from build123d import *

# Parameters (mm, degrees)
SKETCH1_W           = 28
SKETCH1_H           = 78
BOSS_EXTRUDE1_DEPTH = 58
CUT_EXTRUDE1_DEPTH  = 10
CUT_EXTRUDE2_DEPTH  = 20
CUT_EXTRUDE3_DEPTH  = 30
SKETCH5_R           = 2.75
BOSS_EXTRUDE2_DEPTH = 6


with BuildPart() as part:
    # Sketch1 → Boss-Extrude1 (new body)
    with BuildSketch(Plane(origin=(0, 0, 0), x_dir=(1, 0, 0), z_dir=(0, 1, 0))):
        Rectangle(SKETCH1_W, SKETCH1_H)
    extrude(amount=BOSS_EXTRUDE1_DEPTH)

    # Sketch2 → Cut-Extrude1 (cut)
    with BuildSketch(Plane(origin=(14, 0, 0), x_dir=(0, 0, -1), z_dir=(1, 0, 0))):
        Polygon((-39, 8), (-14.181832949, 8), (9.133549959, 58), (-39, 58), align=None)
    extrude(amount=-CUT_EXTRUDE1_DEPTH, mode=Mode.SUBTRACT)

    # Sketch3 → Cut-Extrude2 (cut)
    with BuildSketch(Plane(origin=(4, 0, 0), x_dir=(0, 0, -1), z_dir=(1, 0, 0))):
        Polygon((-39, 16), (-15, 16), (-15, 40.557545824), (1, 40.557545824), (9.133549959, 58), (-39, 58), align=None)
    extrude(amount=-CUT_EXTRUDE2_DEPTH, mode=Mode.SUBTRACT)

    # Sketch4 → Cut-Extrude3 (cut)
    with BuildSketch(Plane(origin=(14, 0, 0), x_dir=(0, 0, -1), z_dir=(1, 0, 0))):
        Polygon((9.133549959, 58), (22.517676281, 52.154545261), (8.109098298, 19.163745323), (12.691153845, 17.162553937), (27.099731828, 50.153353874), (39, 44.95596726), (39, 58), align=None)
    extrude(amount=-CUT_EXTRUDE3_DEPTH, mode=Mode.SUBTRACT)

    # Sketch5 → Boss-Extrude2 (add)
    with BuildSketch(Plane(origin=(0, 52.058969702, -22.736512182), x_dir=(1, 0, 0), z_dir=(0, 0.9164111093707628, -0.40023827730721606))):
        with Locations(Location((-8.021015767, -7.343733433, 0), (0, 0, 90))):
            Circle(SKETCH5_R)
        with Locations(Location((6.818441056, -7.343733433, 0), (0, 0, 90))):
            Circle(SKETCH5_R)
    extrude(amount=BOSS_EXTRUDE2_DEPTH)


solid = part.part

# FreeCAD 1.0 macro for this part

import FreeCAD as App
import Part
import Sketcher

V = App.Vector
Q = App.Units.Quantity


def add_polygon(sketch, points):
    """Adds a closed chain of lines whose ends are joined by coincident constraints."""
    first, n = sketch.GeometryCount, len(points)
    for a, b in zip(points, points[1:] + points[:1]):
        sketch.addGeometry(Part.LineSegment(App.Vector(*a, 0), App.Vector(*b, 0)), False)
    for i in range(n):
        sketch.addConstraint(Sketcher.Constraint("Coincident", first + i, 2, first + (i + 1) % n, 1))

doc = App.newDocument("Part")
body = doc.addObject("PartDesign::Body", "Body")

sketch1 = doc.addObject("Sketcher::SketchObject", "Sketch")
body.addObject(sketch1)
sketch1.AttachmentSupport = (doc.XZ_Plane, [""])
sketch1.MapMode = "FlatFace"
add_polygon(sketch1, [(-14, -39), (-14, 39), (14, 39), (14, -39)])
sketch1.addConstraint(Sketcher.Constraint("Vertical", 0))
sketch1.addConstraint(Sketcher.Constraint("Horizontal", 1))
sketch1.addConstraint(Sketcher.Constraint("Vertical", 2))
sketch1.addConstraint(Sketcher.Constraint("Horizontal", 3))
sketch1.addConstraint(Sketcher.Constraint("Symmetric", 0, 2, 2, 2, -1, 1))
sketch1.addConstraint(Sketcher.Constraint("DistanceX", 1, 1, 1, 2, 28.0))
sketch1.addConstraint(Sketcher.Constraint("DistanceY", 0, 1, 0, 2, 78.0))
pad1 = doc.addObject("PartDesign::Pad", "Pad")
body.addObject(pad1)
pad1.Profile = sketch1
pad1.Length = 58
pad1.Reversed = True

sketch2 = doc.addObject("Sketcher::SketchObject", "Sketch001")
body.addObject(sketch2)
sketch2.AttachmentSupport = (doc.YZ_Plane, [""])
sketch2.MapMode = "FlatFace"
sketch2.AttachmentOffset = App.Placement(V(0, 0, 14), App.Rotation())
add_polygon(sketch2, [(8, 39), (8, 14), (58, -9), (58, 39)])
sketch2.addConstraint(Sketcher.Constraint("Vertical", 0))
sketch2.addConstraint(Sketcher.Constraint("Vertical", 2))
sketch2.addConstraint(Sketcher.Constraint("Horizontal", 3))
sketch2.addConstraint(Sketcher.Constraint("DistanceX", 3, 2, 3, 1, 50.0))
sketch2.addConstraint(Sketcher.Constraint("Angle", 1, Q("-25 deg")))
sketch2.addConstraint(Sketcher.Constraint("DistanceX", -1, 1, 0, 2, 8.0))
sketch2.addConstraint(Sketcher.Constraint("DistanceY", -1, 1, 2, 2, 39.0))
sketch2.addConstraint(Sketcher.Constraint("DistanceY", 2, 1, 2, 2, 48.13355))
pocket1 = doc.addObject("PartDesign::Pocket", "Pocket")
body.addObject(pocket1)
pocket1.Profile = sketch2
pocket1.Length = 10

sketch3 = doc.addObject("Sketcher::SketchObject", "Sketch002")
body.addObject(sketch3)
sketch3.AttachmentSupport = (doc.YZ_Plane, [""])
sketch3.MapMode = "FlatFace"
sketch3.AttachmentOffset = App.Placement(V(0, 0, 4), App.Rotation())
add_polygon(sketch3, [(16, 39), (16, 15), (41, 15), (41, -1), (58, -9), (58, 39)])
sketch3.addConstraint(Sketcher.Constraint("Vertical", 0))
sketch3.addConstraint(Sketcher.Constraint("Horizontal", 1))
sketch3.addConstraint(Sketcher.Constraint("Vertical", 2))
sketch3.addConstraint(Sketcher.Constraint("Vertical", 4))
sketch3.addConstraint(Sketcher.Constraint("Horizontal", 5))
sketch3.addConstraint(Sketcher.Constraint("DistanceX", 5, 2, 5, 1, 42.0))
sketch3.addConstraint(Sketcher.Constraint("DistanceY", 0, 2, 0, 1, 24.0))
sketch3.addConstraint(Sketcher.Constraint("DistanceY", 2, 2, 2, 1, 16.0))
sketch3.addConstraint(Sketcher.Constraint("Angle", 3, Q("-25 deg")))
sketch3.addConstraint(Sketcher.Constraint("DistanceX", -1, 1, 0, 2, 16.0))
sketch3.addConstraint(Sketcher.Constraint("DistanceY", -1, 1, 0, 2, 15.0))
sketch3.addConstraint(Sketcher.Constraint("DistanceY", 4, 1, 4, 2, 48.13355))
pocket2 = doc.addObject("PartDesign::Pocket", "Pocket001")
body.addObject(pocket2)
pocket2.Profile = sketch3
pocket2.Length = 20

sketch4 = doc.addObject("Sketcher::SketchObject", "Sketch003")
body.addObject(sketch4)
sketch4.AttachmentSupport = (doc.YZ_Plane, [""])
sketch4.MapMode = "FlatFace"
sketch4.AttachmentOffset = App.Placement(V(0, 0, 14), App.Rotation())
add_polygon(sketch4, [(58, -9.1), (52.2, -22.5), (19.2, -8.1), (17.2, -12.7), (50.2, -27.1), (45, -39), (58, -39)])
sketch4.addConstraint(Sketcher.Constraint("Horizontal", 5))
sketch4.addConstraint(Sketcher.Constraint("Vertical", 6))
sketch4.addConstraint(Sketcher.Constraint("Perpendicular", 0, 1))
sketch4.addConstraint(Sketcher.Constraint("Perpendicular", 1, 2))
sketch4.addConstraint(Sketcher.Constraint("Perpendicular", 2, 3))
sketch4.addConstraint(Sketcher.Constraint("Perpendicular", 3, 4))
sketch4.addConstraint(Sketcher.Constraint("Equal", 1, 3))
sketch4.addConstraint(Sketcher.Constraint("Distance", 1, 36.0))
sketch4.addConstraint(Sketcher.Constraint("Distance", 2, 5.0))
sketch4.addConstraint(Sketcher.Constraint("DistanceY", 4, 2, -1, 1, 39.0))
sketch4.addConstraint(Sketcher.Constraint("DistanceX", -1, 1, 5, 2, 58.0))
sketch4.addConstraint(Sketcher.Constraint("DistanceY", 6, 1, 6, 2, 29.86645))
sketch4.addConstraint(Sketcher.Constraint("DistanceY", 1, 2, -1, 1, 8.109098))
sketch4.addConstraint(Sketcher.Constraint("DistanceX", 1, 2, 0, 2, 32.9908))
pocket3 = doc.addObject("PartDesign::Pocket", "Pocket002")
body.addObject(pocket3)
pocket3.Profile = sketch4
pocket3.Length = 30

sketch5 = doc.addObject("Sketcher::SketchObject", "Sketch004")
body.addObject(sketch5)
sketch5.Placement = App.Placement(V(0, 52.05897, -22.736512), App.Rotation(V(1, 0, 0), V(0, -0.400238277, -0.916411109), V(0, 0.916411109, -0.400238277), "ZXY"))
sketch5.addGeometry(Part.Circle(V(-8, -7.3, 0), V(0, 0, 1), 2.8), False)
sketch5.addGeometry(Part.Circle(V(6.8, -7.3, 0), V(0, 0, 1), 2.8), False)
sketch5.addConstraint(Sketcher.Constraint("Equal", 0, 1))
sketch5.addConstraint(Sketcher.Constraint("Horizontal", 0, 3, 1, 3))
sketch5.addConstraint(Sketcher.Constraint("Diameter", 0, 5.5))
sketch5.addConstraint(Sketcher.Constraint("DistanceX", -1, 1, 1, 3, 6.818441))
sketch5.addConstraint(Sketcher.Constraint("DistanceX", 0, 3, -1, 1, 8.021016))
sketch5.addConstraint(Sketcher.Constraint("DistanceY", 0, 3, -1, 1, 7.343733))
pad2 = doc.addObject("PartDesign::Pad", "Pad001")
body.addObject(pad2)
pad2.Profile = sketch5
pad2.Length = 6

doc.recompute()
